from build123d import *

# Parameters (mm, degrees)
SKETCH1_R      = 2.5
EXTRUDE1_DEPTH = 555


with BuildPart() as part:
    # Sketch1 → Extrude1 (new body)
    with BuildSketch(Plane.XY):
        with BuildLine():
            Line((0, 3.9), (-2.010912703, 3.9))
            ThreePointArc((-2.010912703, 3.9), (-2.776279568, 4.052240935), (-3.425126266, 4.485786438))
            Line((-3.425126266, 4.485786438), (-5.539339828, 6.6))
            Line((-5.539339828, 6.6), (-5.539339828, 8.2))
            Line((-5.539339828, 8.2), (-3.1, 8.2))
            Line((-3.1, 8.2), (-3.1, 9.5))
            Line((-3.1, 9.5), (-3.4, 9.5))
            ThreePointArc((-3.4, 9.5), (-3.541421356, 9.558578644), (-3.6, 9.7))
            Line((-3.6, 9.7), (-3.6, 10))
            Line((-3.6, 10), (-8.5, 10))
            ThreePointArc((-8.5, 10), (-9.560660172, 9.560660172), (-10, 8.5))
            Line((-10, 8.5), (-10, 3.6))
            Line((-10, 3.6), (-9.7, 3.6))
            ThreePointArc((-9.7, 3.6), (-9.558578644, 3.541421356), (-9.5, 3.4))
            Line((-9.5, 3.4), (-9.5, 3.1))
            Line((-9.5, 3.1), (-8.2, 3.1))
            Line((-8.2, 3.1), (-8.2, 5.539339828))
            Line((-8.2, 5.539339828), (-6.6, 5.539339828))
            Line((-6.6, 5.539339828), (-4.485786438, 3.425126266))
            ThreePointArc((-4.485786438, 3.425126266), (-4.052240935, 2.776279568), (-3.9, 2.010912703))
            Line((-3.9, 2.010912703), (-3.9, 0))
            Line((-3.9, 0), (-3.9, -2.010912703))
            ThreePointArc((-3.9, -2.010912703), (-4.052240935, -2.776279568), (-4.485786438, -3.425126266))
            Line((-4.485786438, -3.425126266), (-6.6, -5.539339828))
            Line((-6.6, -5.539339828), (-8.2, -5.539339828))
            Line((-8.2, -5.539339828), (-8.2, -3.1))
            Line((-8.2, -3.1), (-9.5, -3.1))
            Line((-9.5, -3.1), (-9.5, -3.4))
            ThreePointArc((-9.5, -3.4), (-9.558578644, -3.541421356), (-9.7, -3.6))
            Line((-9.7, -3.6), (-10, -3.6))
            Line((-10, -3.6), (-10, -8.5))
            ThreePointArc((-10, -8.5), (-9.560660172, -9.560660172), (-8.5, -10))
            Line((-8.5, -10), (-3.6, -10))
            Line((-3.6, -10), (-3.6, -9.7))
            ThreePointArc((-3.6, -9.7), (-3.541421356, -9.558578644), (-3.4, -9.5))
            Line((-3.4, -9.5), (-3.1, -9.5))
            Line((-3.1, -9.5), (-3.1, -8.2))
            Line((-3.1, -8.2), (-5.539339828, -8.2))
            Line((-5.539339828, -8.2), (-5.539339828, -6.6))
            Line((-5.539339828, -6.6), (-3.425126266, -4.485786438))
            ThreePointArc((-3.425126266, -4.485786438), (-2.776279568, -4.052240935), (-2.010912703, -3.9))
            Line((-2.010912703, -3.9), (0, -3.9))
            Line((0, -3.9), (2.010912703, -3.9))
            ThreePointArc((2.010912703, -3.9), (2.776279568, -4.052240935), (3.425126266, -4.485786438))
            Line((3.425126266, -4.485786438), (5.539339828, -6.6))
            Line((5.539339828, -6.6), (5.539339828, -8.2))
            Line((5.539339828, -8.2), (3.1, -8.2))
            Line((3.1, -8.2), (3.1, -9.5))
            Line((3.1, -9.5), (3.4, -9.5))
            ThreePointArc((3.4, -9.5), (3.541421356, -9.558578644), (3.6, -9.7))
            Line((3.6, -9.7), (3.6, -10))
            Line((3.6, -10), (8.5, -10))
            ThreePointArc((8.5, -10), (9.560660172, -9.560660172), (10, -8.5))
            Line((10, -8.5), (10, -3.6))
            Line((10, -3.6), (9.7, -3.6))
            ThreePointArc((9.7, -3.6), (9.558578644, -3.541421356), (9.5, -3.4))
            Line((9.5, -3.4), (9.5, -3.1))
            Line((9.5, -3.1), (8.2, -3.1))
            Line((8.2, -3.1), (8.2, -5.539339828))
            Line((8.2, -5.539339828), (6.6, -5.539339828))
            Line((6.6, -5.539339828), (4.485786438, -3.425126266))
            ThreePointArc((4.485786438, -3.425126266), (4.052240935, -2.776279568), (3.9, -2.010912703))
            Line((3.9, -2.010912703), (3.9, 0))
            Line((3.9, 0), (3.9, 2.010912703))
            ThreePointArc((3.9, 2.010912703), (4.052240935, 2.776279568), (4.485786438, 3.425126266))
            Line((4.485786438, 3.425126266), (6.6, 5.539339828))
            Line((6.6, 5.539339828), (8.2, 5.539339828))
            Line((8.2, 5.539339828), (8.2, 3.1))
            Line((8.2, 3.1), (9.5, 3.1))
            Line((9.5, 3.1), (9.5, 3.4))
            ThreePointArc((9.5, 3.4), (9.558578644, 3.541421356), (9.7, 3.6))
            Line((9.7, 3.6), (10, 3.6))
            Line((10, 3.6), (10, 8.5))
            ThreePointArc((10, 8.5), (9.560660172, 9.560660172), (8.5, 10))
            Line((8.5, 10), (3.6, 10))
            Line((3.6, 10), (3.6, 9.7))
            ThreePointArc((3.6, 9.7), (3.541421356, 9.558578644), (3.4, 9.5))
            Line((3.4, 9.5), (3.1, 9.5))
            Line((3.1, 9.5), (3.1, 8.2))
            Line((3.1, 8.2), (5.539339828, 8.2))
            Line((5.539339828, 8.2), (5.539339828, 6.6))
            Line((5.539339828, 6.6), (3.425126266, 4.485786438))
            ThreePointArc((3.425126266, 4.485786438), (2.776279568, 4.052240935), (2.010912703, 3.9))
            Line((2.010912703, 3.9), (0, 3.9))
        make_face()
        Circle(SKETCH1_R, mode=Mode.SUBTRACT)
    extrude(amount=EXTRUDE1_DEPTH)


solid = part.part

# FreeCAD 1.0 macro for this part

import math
import FreeCAD as App
import Part
import Sketcher
from FreeCAD import Vector

doc = App.newDocument("Part")
body = doc.addObject("PartDesign::Body", "Body")

sketch1 = body.newObject("Sketcher::SketchObject", "Sketch")
sketch1.AttachmentSupport = (doc.getObject("XY_Plane"), [""])
sketch1.MapMode = "FlatFace"
sketch1.addGeometry([
    Part.ArcOfCircle(Part.Circle(Vector(-2.01, 5.9, 0), Vector(0, 0, 1), 2), math.radians(-135), math.radians(-90)),
    Part.LineSegment(Vector(-3.43, 4.49, 0), Vector(-5.54, 6.6, 0)),
    Part.LineSegment(Vector(-5.54, 6.6, 0), Vector(-5.54, 8.2, 0)),
    Part.LineSegment(Vector(-5.54, 8.2, 0), Vector(-3.1, 8.2, 0)),
    Part.LineSegment(Vector(-3.1, 8.2, 0), Vector(-3.1, 9.5, 0)),
    Part.LineSegment(Vector(-3.1, 9.5, 0), Vector(-3.4, 9.5, 0)),
    Part.ArcOfCircle(Part.Circle(Vector(-3.4, 9.7, 0), Vector(0, 0, 1), 0.2), math.radians(-180), math.radians(-90)),
    Part.LineSegment(Vector(-3.6, 9.7, 0), Vector(-3.6, 10, 0)),
    Part.LineSegment(Vector(-3.6, 10, 0), Vector(-8.5, 10, 0)),
    Part.ArcOfCircle(Part.Circle(Vector(-8.5, 8.5, 0), Vector(0, 0, 1), 1.5), math.radians(90), math.radians(180)),
    Part.LineSegment(Vector(-10, 8.5, 0), Vector(-10, 3.6, 0)),
    Part.LineSegment(Vector(-10, 3.6, 0), Vector(-9.7, 3.6, 0)),
    Part.ArcOfCircle(Part.Circle(Vector(-9.7, 3.4, 0), Vector(0, 0, 1), 0.2), math.radians(0), math.radians(90)),
    Part.LineSegment(Vector(-9.5, 3.4, 0), Vector(-9.5, 3.1, 0)),
    Part.LineSegment(Vector(-9.5, 3.1, 0), Vector(-8.2, 3.1, 0)),
    Part.LineSegment(Vector(-8.2, 3.1, 0), Vector(-8.2, 5.54, 0)),
    Part.LineSegment(Vector(-8.2, 5.54, 0), Vector(-6.6, 5.54, 0)),
    Part.LineSegment(Vector(-6.6, 5.54, 0), Vector(-4.49, 3.43, 0)),
    Part.ArcOfCircle(Part.Circle(Vector(-5.9, 2.01, 0), Vector(0, 0, 1), 2), math.radians(0), math.radians(45)),
    Part.LineSegment(Vector(-3.9, 2.01, 0), Vector(-3.9, -2.01, 0)),
    Part.ArcOfCircle(Part.Circle(Vector(-5.9, -2.01, 0), Vector(0, 0, 1), 2), math.radians(-45), math.radians(0)),
    Part.LineSegment(Vector(-4.49, -3.43, 0), Vector(-6.6, -5.54, 0)),
    Part.LineSegment(Vector(-6.6, -5.54, 0), Vector(-8.2, -5.54, 0)),
    Part.LineSegment(Vector(-8.2, -5.54, 0), Vector(-8.2, -3.1, 0)),
    Part.LineSegment(Vector(-8.2, -3.1, 0), Vector(-9.5, -3.1, 0)),
    Part.LineSegment(Vector(-9.5, -3.1, 0), Vector(-9.5, -3.4, 0)),
    Part.ArcOfCircle(Part.Circle(Vector(-9.7, -3.4, 0), Vector(0, 0, 1), 0.2), math.radians(-90), math.radians(0)),
    Part.LineSegment(Vector(-9.7, -3.6, 0), Vector(-10, -3.6, 0)),
    Part.LineSegment(Vector(-10, -3.6, 0), Vector(-10, -8.5, 0)),
    Part.ArcOfCircle(Part.Circle(Vector(-8.5, -8.5, 0), Vector(0, 0, 1), 1.5), math.radians(180), math.radians(270)),
    Part.LineSegment(Vector(-8.5, -10, 0), Vector(-3.6, -10, 0)),
    Part.LineSegment(Vector(-3.6, -10, 0), Vector(-3.6, -9.7, 0)),
    Part.ArcOfCircle(Part.Circle(Vector(-3.4, -9.7, 0), Vector(0, 0, 1), 0.2), math.radians(90), math.radians(180)),
    Part.LineSegment(Vector(-3.4, -9.5, 0), Vector(-3.1, -9.5, 0)),
    Part.LineSegment(Vector(-3.1, -9.5, 0), Vector(-3.1, -8.2, 0)),
    Part.LineSegment(Vector(-3.1, -8.2, 0), Vector(-5.54, -8.2, 0)),
    Part.LineSegment(Vector(-5.54, -8.2, 0), Vector(-5.54, -6.6, 0)),
    Part.LineSegment(Vector(-5.54, -6.6, 0), Vector(-3.43, -4.49, 0)),
    Part.ArcOfCircle(Part.Circle(Vector(-2.01, -5.9, 0), Vector(0, 0, 1), 2), math.radians(90), math.radians(135)),
    Part.LineSegment(Vector(-2.01, -3.9, 0), Vector(2.01, -3.9, 0)),
    Part.ArcOfCircle(Part.Circle(Vector(2.01, -5.9, 0), Vector(0, 0, 1), 2), math.radians(45), math.radians(90)),
    Part.LineSegment(Vector(3.43, -4.49, 0), Vector(5.54, -6.6, 0)),
    Part.LineSegment(Vector(5.54, -6.6, 0), Vector(5.54, -8.2, 0)),
    Part.LineSegment(Vector(5.54, -8.2, 0), Vector(3.1, -8.2, 0)),
    Part.LineSegment(Vector(3.1, -8.2, 0), Vector(3.1, -9.5, 0)),
    Part.LineSegment(Vector(3.1, -9.5, 0), Vector(3.4, -9.5, 0)),
    Part.ArcOfCircle(Part.Circle(Vector(3.4, -9.7, 0), Vector(0, 0, 1), 0.2), math.radians(0), math.radians(90)),
    Part.LineSegment(Vector(3.6, -9.7, 0), Vector(3.6, -10, 0)),
    Part.LineSegment(Vector(3.6, -10, 0), Vector(8.5, -10, 0)),
    Part.ArcOfCircle(Part.Circle(Vector(8.5, -8.5, 0), Vector(0, 0, 1), 1.5), math.radians(-90), math.radians(0)),
    Part.LineSegment(Vector(10, -8.5, 0), Vector(10, -3.6, 0)),
    Part.LineSegment(Vector(10, -3.6, 0), Vector(9.7, -3.6, 0)),
    Part.ArcOfCircle(Part.Circle(Vector(9.7, -3.4, 0), Vector(0, 0, 1), 0.2), math.radians(-180), math.radians(-90)),
    Part.LineSegment(Vector(9.5, -3.4, 0), Vector(9.5, -3.1, 0)),
    Part.LineSegment(Vector(9.5, -3.1, 0), Vector(8.2, -3.1, 0)),
    Part.LineSegment(Vector(8.2, -3.1, 0), Vector(8.2, -5.54, 0)),
    Part.LineSegment(Vector(8.2, -5.54, 0), Vector(6.6, -5.54, 0)),
    Part.LineSegment(Vector(6.6, -5.54, 0), Vector(4.49, -3.43, 0)),
    Part.ArcOfCircle(Part.Circle(Vector(5.9, -2.01, 0), Vector(0, 0, 1), 2), math.radians(180), math.radians(225)),
    Part.LineSegment(Vector(3.9, -2.01, 0), Vector(3.9, 2.01, 0)),
    Part.ArcOfCircle(Part.Circle(Vector(5.9, 2.01, 0), Vector(0, 0, 1), 2), math.radians(135), math.radians(180)),
    Part.LineSegment(Vector(4.49, 3.43, 0), Vector(6.6, 5.54, 0)),
    Part.LineSegment(Vector(6.6, 5.54, 0), Vector(8.2, 5.54, 0)),
    Part.LineSegment(Vector(8.2, 5.54, 0), Vector(8.2, 3.1, 0)),
    Part.LineSegment(Vector(8.2, 3.1, 0), Vector(9.5, 3.1, 0)),
    Part.LineSegment(Vector(9.5, 3.1, 0), Vector(9.5, 3.4, 0)),
    Part.ArcOfCircle(Part.Circle(Vector(9.7, 3.4, 0), Vector(0, 0, 1), 0.2), math.radians(90), math.radians(180)),
    Part.LineSegment(Vector(9.7, 3.6, 0), Vector(10, 3.6, 0)),
    Part.LineSegment(Vector(10, 3.6, 0), Vector(10, 8.5, 0)),
    Part.ArcOfCircle(Part.Circle(Vector(8.5, 8.5, 0), Vector(0, 0, 1), 1.5), math.radians(0), math.radians(90)),
    Part.LineSegment(Vector(8.5, 10, 0), Vector(3.6, 10, 0)),
    Part.LineSegment(Vector(3.6, 10, 0), Vector(3.6, 9.7, 0)),
    Part.ArcOfCircle(Part.Circle(Vector(3.4, 9.7, 0), Vector(0, 0, 1), 0.2), math.radians(-90), math.radians(0)),
    Part.LineSegment(Vector(3.4, 9.5, 0), Vector(3.1, 9.5, 0)),
    Part.LineSegment(Vector(3.1, 9.5, 0), Vector(3.1, 8.2, 0)),
    Part.LineSegment(Vector(3.1, 8.2, 0), Vector(5.54, 8.2, 0)),
    Part.LineSegment(Vector(5.54, 8.2, 0), Vector(5.54, 6.6, 0)),
    Part.LineSegment(Vector(5.54, 6.6, 0), Vector(3.43, 4.49, 0)),
    Part.ArcOfCircle(Part.Circle(Vector(2.01, 5.9, 0), Vector(0, 0, 1), 2), math.radians(-90), math.radians(-45)),
    Part.LineSegment(Vector(2.01, 3.9, 0), Vector(-2.01, 3.9, 0)),
    Part.Circle(Vector(0, 0, 0), Vector(0, 0, 1), 2.5),
], False)
sketch1.addConstraint([
    Sketcher.Constraint("Tangent", 0, 1, 1, 1),
    Sketcher.Constraint("Coincident", 1, 2, 2, 1),
    Sketcher.Constraint("Coincident", 2, 2, 3, 1),
    Sketcher.Constraint("Coincident", 3, 2, 4, 1),
    Sketcher.Constraint("Coincident", 4, 2, 5, 1),
    Sketcher.Constraint("Tangent", 5, 2, 6, 2),
    Sketcher.Constraint("Tangent", 6, 1, 7, 1),
    Sketcher.Constraint("Coincident", 7, 2, 8, 1),
    Sketcher.Constraint("Tangent", 8, 2, 9, 1),
    Sketcher.Constraint("Tangent", 9, 2, 10, 1),
    Sketcher.Constraint("Coincident", 10, 2, 11, 1),
    Sketcher.Constraint("Tangent", 11, 2, 12, 2),
    Sketcher.Constraint("Tangent", 12, 1, 13, 1),
    Sketcher.Constraint("Coincident", 13, 2, 14, 1),
    Sketcher.Constraint("Coincident", 14, 2, 15, 1),
    Sketcher.Constraint("Coincident", 15, 2, 16, 1),
    Sketcher.Constraint("Coincident", 16, 2, 17, 1),
    Sketcher.Constraint("Tangent", 17, 2, 18, 2),
    Sketcher.Constraint("Tangent", 18, 1, 19, 1),
    Sketcher.Constraint("Tangent", 19, 2, 20, 2),
    Sketcher.Constraint("Tangent", 20, 1, 21, 1),
    Sketcher.Constraint("Coincident", 21, 2, 22, 1),
    Sketcher.Constraint("Coincident", 22, 2, 23, 1),
    Sketcher.Constraint("Coincident", 23, 2, 24, 1),
    Sketcher.Constraint("Coincident", 24, 2, 25, 1),
    Sketcher.Constraint("Tangent", 25, 2, 26, 2),
    Sketcher.Constraint("Tangent", 26, 1, 27, 1),
    Sketcher.Constraint("Coincident", 27, 2, 28, 1),
    Sketcher.Constraint("Tangent", 28, 2, 29, 1),
    Sketcher.Constraint("Tangent", 29, 2, 30, 1),
    Sketcher.Constraint("Coincident", 30, 2, 31, 1),
    Sketcher.Constraint("Tangent", 31, 2, 32, 2),
    Sketcher.Constraint("Tangent", 32, 1, 33, 1),
    Sketcher.Constraint("Coincident", 33, 2, 34, 1),
    Sketcher.Constraint("Coincident", 34, 2, 35, 1),
    Sketcher.Constraint("Coincident", 35, 2, 36, 1),
    Sketcher.Constraint("Coincident", 36, 2, 37, 1),
    Sketcher.Constraint("Tangent", 37, 2, 38, 2),
    Sketcher.Constraint("Tangent", 38, 1, 39, 1),
    Sketcher.Constraint("Tangent", 39, 2, 40, 2),
    Sketcher.Constraint("Tangent", 40, 1, 41, 1),
    Sketcher.Constraint("Coincident", 41, 2, 42, 1),
    Sketcher.Constraint("Coincident", 42, 2, 43, 1),
    Sketcher.Constraint("Coincident", 43, 2, 44, 1),
    Sketcher.Constraint("Coincident", 44, 2, 45, 1),
    Sketcher.Constraint("Tangent", 45, 2, 46, 2),
    Sketcher.Constraint("Tangent", 46, 1, 47, 1),
    Sketcher.Constraint("Coincident", 47, 2, 48, 1),
    Sketcher.Constraint("Tangent", 48, 2, 49, 1),
    Sketcher.Constraint("Tangent", 49, 2, 50, 1),
    Sketcher.Constraint("Coincident", 50, 2, 51, 1),
    Sketcher.Constraint("Tangent", 51, 2, 52, 2),
    Sketcher.Constraint("Tangent", 52, 1, 53, 1),
    Sketcher.Constraint("Coincident", 53, 2, 54, 1),
    Sketcher.Constraint("Coincident", 54, 2, 55, 1),
    Sketcher.Constraint("Coincident", 55, 2, 56, 1),
    Sketcher.Constraint("Coincident", 56, 2, 57, 1),
    Sketcher.Constraint("Tangent", 57, 2, 58, 2),
    Sketcher.Constraint("Tangent", 58, 1, 59, 1),
    Sketcher.Constraint("Tangent", 59, 2, 60, 2),
    Sketcher.Constraint("Tangent", 60, 1, 61, 1),
    Sketcher.Constraint("Coincident", 61, 2, 62, 1),
    Sketcher.Constraint("Coincident", 62, 2, 63, 1),
    Sketcher.Constraint("Coincident", 63, 2, 64, 1),
    Sketcher.Constraint("Coincident", 64, 2, 65, 1),
    Sketcher.Constraint("Tangent", 65, 2, 66, 2),
    Sketcher.Constraint("Tangent", 66, 1, 67, 1),
    Sketcher.Constraint("Coincident", 67, 2, 68, 1),
    Sketcher.Constraint("Tangent", 68, 2, 69, 1),
    Sketcher.Constraint("Tangent", 69, 2, 70, 1),
    Sketcher.Constraint("Coincident", 70, 2, 71, 1),
    Sketcher.Constraint("Tangent", 71, 2, 72, 2),
    Sketcher.Constraint("Tangent", 72, 1, 73, 1),
    Sketcher.Constraint("Coincident", 73, 2, 74, 1),
    Sketcher.Constraint("Coincident", 74, 2, 75, 1),
    Sketcher.Constraint("Coincident", 75, 2, 76, 1),
    Sketcher.Constraint("Coincident", 76, 2, 77, 1),
    Sketcher.Constraint("Tangent", 77, 2, 78, 2),
    Sketcher.Constraint("Tangent", 78, 1, 79, 1),
    Sketcher.Constraint("Tangent", 79, 2, 0, 2),
    Sketcher.Constraint("Vertical", 2),
    Sketcher.Constraint("Horizontal", 3),
    Sketcher.Constraint("Vertical", 4),
    Sketcher.Constraint("Horizontal", 5),
    Sketcher.Constraint("Vertical", 7),
    Sketcher.Constraint("Horizontal", 8),
    Sketcher.Constraint("Vertical", 10),
    Sketcher.Constraint("Horizontal", 11),
    Sketcher.Constraint("Vertical", 13),
    Sketcher.Constraint("Horizontal", 14),
    Sketcher.Constraint("Vertical", 15),
    Sketcher.Constraint("Horizontal", 16),
    Sketcher.Constraint("Vertical", 19),
    Sketcher.Constraint("Horizontal", 22),
    Sketcher.Constraint("Vertical", 23),
    Sketcher.Constraint("Horizontal", 24),
    Sketcher.Constraint("Vertical", 25),
    Sketcher.Constraint("Horizontal", 27),
    Sketcher.Constraint("Vertical", 28),
    Sketcher.Constraint("Horizontal", 30),
    Sketcher.Constraint("Vertical", 31),
    Sketcher.Constraint("Horizontal", 33),
    Sketcher.Constraint("Vertical", 34),
    Sketcher.Constraint("Horizontal", 35),
    Sketcher.Constraint("Vertical", 36),
    Sketcher.Constraint("Horizontal", 39),
    Sketcher.Constraint("Vertical", 42),
    Sketcher.Constraint("Horizontal", 43),
    Sketcher.Constraint("Vertical", 44),
    Sketcher.Constraint("Horizontal", 45),
    Sketcher.Constraint("Vertical", 47),
    Sketcher.Constraint("Horizontal", 48),
    Sketcher.Constraint("Vertical", 50),
    Sketcher.Constraint("Horizontal", 51),
    Sketcher.Constraint("Vertical", 53),
    Sketcher.Constraint("Horizontal", 54),
    Sketcher.Constraint("Vertical", 55),
    Sketcher.Constraint("Horizontal", 56),
    Sketcher.Constraint("Vertical", 59),
    Sketcher.Constraint("Horizontal", 62),
    Sketcher.Constraint("Vertical", 63),
    Sketcher.Constraint("Horizontal", 64),
    Sketcher.Constraint("Vertical", 65),
    Sketcher.Constraint("Horizontal", 67),
    Sketcher.Constraint("Vertical", 68),
    Sketcher.Constraint("Horizontal", 70),
    Sketcher.Constraint("Vertical", 71),
    Sketcher.Constraint("Horizontal", 73),
    Sketcher.Constraint("Vertical", 74),
    Sketcher.Constraint("Horizontal", 75),
    Sketcher.Constraint("Vertical", 76),
    Sketcher.Constraint("Horizontal", 79),
    Sketcher.Constraint("Coincident", 80, 3, -1, 1),
    Sketcher.Constraint("Equal", 6, 12),
    Sketcher.Constraint("Equal", 0, 18),
    Sketcher.Constraint("Equal", 18, 20),
    Sketcher.Constraint("Equal", 12, 26),
    Sketcher.Constraint("Equal", 9, 29),
    Sketcher.Constraint("Equal", 26, 32),
    Sketcher.Constraint("Equal", 20, 38),
    Sketcher.Constraint("Equal", 38, 40),
    Sketcher.Constraint("Equal", 32, 46),
    Sketcher.Constraint("Equal", 29, 49),
    Sketcher.Constraint("Equal", 46, 52),
    Sketcher.Constraint("Equal", 40, 58),
    Sketcher.Constraint("Equal", 58, 60),
    Sketcher.Constraint("Equal", 52, 66),
    Sketcher.Constraint("Equal", 49, 69),
    Sketcher.Constraint("Equal", 66, 72),
    Sketcher.Constraint("Equal", 60, 78),
    Sketcher.Constraint("Symmetric", 0, 3, 40, 3, -1, 1),
    Sketcher.Constraint("Symmetric", 6, 3, 46, 3, -1, 1),
    Sketcher.Constraint("Symmetric", 9, 3, 49, 3, -1, 1),
    Sketcher.Constraint("Symmetric", 12, 3, 52, 3, -1, 1),
    Sketcher.Constraint("Symmetric", 18, 3, 58, 3, -1, 1),
    Sketcher.Constraint("Symmetric", 26, 3, 66, 3, -1, 1),
    Sketcher.Constraint("Symmetric", 29, 3, 69, 3, -1, 1),
    Sketcher.Constraint("Symmetric", 32, 3, 72, 3, -1, 1),
    Sketcher.Constraint("Symmetric", 1, 2, 41, 2, -1, 1),
    Sketcher.Constraint("Symmetric", 3, 2, 43, 2, -1, 1),
    Sketcher.Constraint("Symmetric", 14, 2, 54, 2, -1, 1),
    Sketcher.Constraint("Symmetric", 16, 2, 56, 2, -1, 1),
    Sketcher.Constraint("Symmetric", 20, 1, 60, 1, -1, 1),
    Sketcher.Constraint("Symmetric", 22, 2, 62, 2, -1, 1),
    Sketcher.Constraint("Symmetric", 34, 2, 74, 2, -1, 1),
    Sketcher.Constraint("Symmetric", 36, 2, 76, 2, -1, 1),
    Sketcher.Constraint("Symmetric", 32, 3, 46, 3, -2),
    Sketcher.Constraint("Symmetric", 29, 3, 49, 3, -2),
    Sketcher.Constraint("Symmetric", 26, 3, 52, 3, -2),
    Sketcher.Constraint("Symmetric", 37, 2, 40, 1, -2),
    Sketcher.Constraint("Symmetric", 35, 2, 42, 2, -2),
    Sketcher.Constraint("Symmetric", 23, 2, 54, 2, -2),
    Sketcher.Constraint("Symmetric", 21, 2, 56, 2, -2),
    Sketcher.Constraint("Parallel", 1, 17),
    Sketcher.Constraint("Perpendicular", 17, 21),
    Sketcher.Constraint("Parallel", 21, 37),
    Sketcher.Constraint("Parallel", 61, 77),
    Sketcher.Constraint("Horizontal", 14, 2, 63, 2),
    Sketcher.Constraint("Vertical", 4, 2, 33, 2),
    Sketcher.Constraint("Equal", 5, 11),
    Sketcher.Constraint("Equal", 62, 2),
    Sketcher.Constraint("Equal", 64, 4),
    Sketcher.Constraint("Equal", 73, 7),
    Sketcher.Constraint("Equal", 70, 10),
    Sketcher.Constraint("Equal", 7, 13),
    Sketcher.Constraint("Equal", 75, 15),
    Sketcher.Constraint("Equal", 79, 19),
    Sketcher.Constraint("Equal", 1, 17),
    Sketcher.Constraint("Diameter", 80, 5.0),
    Sketcher.Constraint("Radius", 0, 2.0),
    Sketcher.Constraint("Radius", 6, 0.2),
    Sketcher.Constraint("Radius", 9, 1.5),
    Sketcher.Constraint("DistanceX", 5, 2, 5, 1, 0.3),
    Sketcher.Constraint("DistanceX", 8, 2, 8, 1, 4.9),
    Sketcher.Constraint("DistanceX", 14, 1, 14, 2, 1.3),
    Sketcher.Constraint("DistanceX", 16, 1, 16, 2, 1.6),
    Sketcher.Constraint("DistanceY", -1, 1, 7, 2, 10.0),
    Sketcher.Constraint("DistanceY", -1, 1, 0, 3, 5.9),
    Sketcher.Constraint("DistanceX", 3, 1, 3, 2, 2.43934),
])
pad1 = body.newObject("PartDesign::Pad", "Pad")
pad1.Profile = sketch1
pad1.Length = 555

doc.recompute()
